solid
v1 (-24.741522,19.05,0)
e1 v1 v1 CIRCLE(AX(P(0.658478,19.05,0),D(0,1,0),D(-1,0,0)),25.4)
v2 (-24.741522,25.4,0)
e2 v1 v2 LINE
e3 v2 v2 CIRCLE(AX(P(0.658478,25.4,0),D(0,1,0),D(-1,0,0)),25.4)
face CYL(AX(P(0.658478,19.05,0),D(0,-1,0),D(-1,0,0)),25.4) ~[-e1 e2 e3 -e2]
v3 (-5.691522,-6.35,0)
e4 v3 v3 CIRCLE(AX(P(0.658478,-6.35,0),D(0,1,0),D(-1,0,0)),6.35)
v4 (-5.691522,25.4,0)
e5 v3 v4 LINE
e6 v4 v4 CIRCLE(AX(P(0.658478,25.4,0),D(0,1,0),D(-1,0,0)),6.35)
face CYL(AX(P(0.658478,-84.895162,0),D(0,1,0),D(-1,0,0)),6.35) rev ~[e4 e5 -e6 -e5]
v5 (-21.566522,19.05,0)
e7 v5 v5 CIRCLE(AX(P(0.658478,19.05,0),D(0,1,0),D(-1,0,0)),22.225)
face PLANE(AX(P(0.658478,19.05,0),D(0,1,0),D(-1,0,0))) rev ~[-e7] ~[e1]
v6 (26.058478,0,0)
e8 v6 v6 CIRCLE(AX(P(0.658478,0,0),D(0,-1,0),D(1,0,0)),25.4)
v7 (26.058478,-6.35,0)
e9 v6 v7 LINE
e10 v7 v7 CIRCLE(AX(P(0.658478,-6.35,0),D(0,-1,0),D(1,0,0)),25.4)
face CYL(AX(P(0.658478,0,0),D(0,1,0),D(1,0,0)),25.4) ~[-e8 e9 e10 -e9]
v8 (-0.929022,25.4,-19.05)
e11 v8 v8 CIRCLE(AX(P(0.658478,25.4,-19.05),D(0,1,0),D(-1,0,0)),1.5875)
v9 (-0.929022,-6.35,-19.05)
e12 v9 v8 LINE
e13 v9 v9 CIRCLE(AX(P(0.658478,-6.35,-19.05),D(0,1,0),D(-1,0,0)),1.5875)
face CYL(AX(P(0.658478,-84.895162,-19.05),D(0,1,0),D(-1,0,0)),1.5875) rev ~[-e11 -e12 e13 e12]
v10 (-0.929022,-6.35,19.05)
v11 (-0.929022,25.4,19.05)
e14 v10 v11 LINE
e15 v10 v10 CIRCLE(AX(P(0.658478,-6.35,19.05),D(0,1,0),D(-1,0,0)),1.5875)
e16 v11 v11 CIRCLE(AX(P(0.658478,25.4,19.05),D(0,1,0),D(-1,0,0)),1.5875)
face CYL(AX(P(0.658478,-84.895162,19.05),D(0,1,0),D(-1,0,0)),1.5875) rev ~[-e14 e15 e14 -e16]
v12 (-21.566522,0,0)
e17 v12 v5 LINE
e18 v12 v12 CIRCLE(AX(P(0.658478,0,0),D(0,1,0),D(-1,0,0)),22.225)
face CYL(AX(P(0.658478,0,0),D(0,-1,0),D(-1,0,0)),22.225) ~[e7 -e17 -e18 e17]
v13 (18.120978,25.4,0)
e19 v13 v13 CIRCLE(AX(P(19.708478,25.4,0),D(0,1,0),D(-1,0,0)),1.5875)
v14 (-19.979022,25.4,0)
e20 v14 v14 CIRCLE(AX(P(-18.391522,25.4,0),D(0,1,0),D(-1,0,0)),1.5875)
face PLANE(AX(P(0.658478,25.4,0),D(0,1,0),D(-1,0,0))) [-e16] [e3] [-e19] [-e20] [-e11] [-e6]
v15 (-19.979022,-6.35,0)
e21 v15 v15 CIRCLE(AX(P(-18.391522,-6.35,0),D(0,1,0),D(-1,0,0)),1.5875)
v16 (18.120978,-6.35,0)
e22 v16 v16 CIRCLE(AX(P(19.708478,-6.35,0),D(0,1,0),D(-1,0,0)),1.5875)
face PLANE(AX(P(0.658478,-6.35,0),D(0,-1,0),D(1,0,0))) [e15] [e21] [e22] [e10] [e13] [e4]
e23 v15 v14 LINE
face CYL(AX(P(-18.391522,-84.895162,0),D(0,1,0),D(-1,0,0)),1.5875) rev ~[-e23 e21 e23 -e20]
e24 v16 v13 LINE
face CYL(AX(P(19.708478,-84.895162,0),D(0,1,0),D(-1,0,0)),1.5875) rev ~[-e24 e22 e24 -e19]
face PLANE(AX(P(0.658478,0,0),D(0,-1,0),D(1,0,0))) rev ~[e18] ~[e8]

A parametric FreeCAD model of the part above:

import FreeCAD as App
import Part
import Sketcher

V = App.Vector
Q = App.Units.Quantity

doc = App.newDocument("Part")
body = doc.addObject("PartDesign::Body", "Body")

sketch1 = body.newObject("Sketcher::SketchObject", "Sketch")
sketch1.AttachmentSupport = (doc.getObject("XZ_Plane"), [""])
sketch1.MapMode = "FlatFace"
sketch1.addGeometry(Part.Circle(V(1, 0, 0), V(0, 0, 1), 25), False)
sketch1.addConstraint([
    Sketcher.Constraint("PointOnObject", 0, 3, -1),
    Sketcher.Constraint("Diameter", 0, Q("2 in")),
    Sketcher.Constraint("DistanceX", -1, 1, 0, 3, 0.658478),
])
pad1 = body.newObject("PartDesign::Pad", "Pad")
pad1.Profile = sketch1
pad1.Length = Q("0.25 in")

sketch2 = body.newObject("Sketcher::SketchObject", "Sketch001")
sketch2.AttachmentSupport = (doc.getObject("XZ_Plane"), [""])
sketch2.MapMode = "FlatFace"
sketch2.addGeometry(Part.Circle(V(1, 0, 0), V(0, 0, 1), 22), False)
sketch2.addConstraint([
    Sketcher.Constraint("PointOnObject", 0, 3, -1),
    Sketcher.Constraint("Diameter", 0, Q("1.75 in")),
    Sketcher.Constraint("DistanceX", -1, 1, 0, 3, 0.658478),
])
pad2 = body.newObject("PartDesign::Pad", "Pad001")
pad2.Profile = sketch2
pad2.Length = Q("0.75 in")
pad2.Reversed = True

sketch3 = body.newObject("Sketcher::SketchObject", "Sketch002")
sketch3.AttachmentSupport = (doc.getObject("XZ_Plane"), [""])
sketch3.MapMode = "FlatFace"
sketch3.AttachmentOffset = App.Placement(V(0, 0, -0.75 * 25.4), App.Rotation())
sketch3.addGeometry(Part.Circle(V(1, 0, 0), V(0, 0, 1), 25), False)
sketch3.addConstraint([
    Sketcher.Constraint("PointOnObject", 0, 3, -1),
    Sketcher.Constraint("Diameter", 0, Q("2 in")),
    Sketcher.Constraint("DistanceX", -1, 1, 0, 3, 0.658478),
])
pad3 = body.newObject("PartDesign::Pad", "Pad002")
pad3.Profile = sketch3
pad3.Length = Q("0.25 in")
pad3.Reversed = True

sketch4 = body.newObject("Sketcher::SketchObject", "Sketch003")
sketch4.AttachmentSupport = (doc.getObject("XZ_Plane"), [""])
sketch4.MapMode = "FlatFace"
sketch4.AttachmentOffset = App.Placement(V(0, 0, 0.25 * 25.4), App.Rotation())
sketch4.addGeometry([
    Part.Circle(V(0.7, 19.1, 0), V(0, 0, 1), 1.6),
    Part.Circle(V(19.7, 0, 0), V(0, 0, 1), 1.6),
    Part.Circle(V(0.7, -19.1, 0), V(0, 0, 1), 1.6),
    Part.Circle(V(-18.4, 0, 0), V(0, 0, 1), 1.6),
], False)
sketch4.addConstraint([
    Sketcher.Constraint("Equal", 0, 1),
    Sketcher.Constraint("Equal", 1, 2),
    Sketcher.Constraint("Equal", 2, 3),
    Sketcher.Constraint("Symmetric", 0, 3, 2, 3, -1),
    Sketcher.Constraint("PointOnObject", 1, 3, -1),
    Sketcher.Constraint("PointOnObject", 3, 3, -1),
    Sketcher.Constraint("Diameter", 0, Q("0.125 in")),
    Sketcher.Constraint("DistanceY", 2, 3, 0, 3, Q("1.5 in")),
    Sketcher.Constraint("DistanceX", 3, 3, 1, 3, Q("1.5 in")),
    Sketcher.Constraint("DistanceX", 0, 3, 1, 3, Q("0.75 in")),
    Sketcher.Constraint("DistanceX", -1, 1, 0, 3, 0.658478),
])
doc.recompute()
hole = body.newObject("PartDesign::Hole", "Hole")
hole.Profile = sketch4
hole.ThreadType = "None"
hole.Diameter = Q("0.125 in")
hole.DepthType = "ThroughAll"

sketch5 = body.newObject("Sketcher::SketchObject", "Sketch004")
sketch5.AttachmentSupport = (doc.getObject("XZ_Plane"), [""])
sketch5.MapMode = "FlatFace"
sketch5.AttachmentOffset = App.Placement(V(0, 0, 0.25 * 25.4), App.Rotation())
sketch5.addGeometry(Part.Circle(V(1, 0, 0), V(0, 0, 1), 6), False)
sketch5.addConstraint([
    Sketcher.Constraint("PointOnObject", 0, 3, -1),
    Sketcher.Constraint("Diameter", 0, Q("0.5 in")),
    Sketcher.Constraint("DistanceX", -1, 1, 0, 3, 0.658478),
])
doc.recompute()
hole2 = body.newObject("PartDesign::Hole", "Hole001")
hole2.Profile = sketch5
hole2.ThreadType = "None"
hole2.Diameter = Q("0.5 in")
hole2.DepthType = "ThroughAll"

doc.recompute()
